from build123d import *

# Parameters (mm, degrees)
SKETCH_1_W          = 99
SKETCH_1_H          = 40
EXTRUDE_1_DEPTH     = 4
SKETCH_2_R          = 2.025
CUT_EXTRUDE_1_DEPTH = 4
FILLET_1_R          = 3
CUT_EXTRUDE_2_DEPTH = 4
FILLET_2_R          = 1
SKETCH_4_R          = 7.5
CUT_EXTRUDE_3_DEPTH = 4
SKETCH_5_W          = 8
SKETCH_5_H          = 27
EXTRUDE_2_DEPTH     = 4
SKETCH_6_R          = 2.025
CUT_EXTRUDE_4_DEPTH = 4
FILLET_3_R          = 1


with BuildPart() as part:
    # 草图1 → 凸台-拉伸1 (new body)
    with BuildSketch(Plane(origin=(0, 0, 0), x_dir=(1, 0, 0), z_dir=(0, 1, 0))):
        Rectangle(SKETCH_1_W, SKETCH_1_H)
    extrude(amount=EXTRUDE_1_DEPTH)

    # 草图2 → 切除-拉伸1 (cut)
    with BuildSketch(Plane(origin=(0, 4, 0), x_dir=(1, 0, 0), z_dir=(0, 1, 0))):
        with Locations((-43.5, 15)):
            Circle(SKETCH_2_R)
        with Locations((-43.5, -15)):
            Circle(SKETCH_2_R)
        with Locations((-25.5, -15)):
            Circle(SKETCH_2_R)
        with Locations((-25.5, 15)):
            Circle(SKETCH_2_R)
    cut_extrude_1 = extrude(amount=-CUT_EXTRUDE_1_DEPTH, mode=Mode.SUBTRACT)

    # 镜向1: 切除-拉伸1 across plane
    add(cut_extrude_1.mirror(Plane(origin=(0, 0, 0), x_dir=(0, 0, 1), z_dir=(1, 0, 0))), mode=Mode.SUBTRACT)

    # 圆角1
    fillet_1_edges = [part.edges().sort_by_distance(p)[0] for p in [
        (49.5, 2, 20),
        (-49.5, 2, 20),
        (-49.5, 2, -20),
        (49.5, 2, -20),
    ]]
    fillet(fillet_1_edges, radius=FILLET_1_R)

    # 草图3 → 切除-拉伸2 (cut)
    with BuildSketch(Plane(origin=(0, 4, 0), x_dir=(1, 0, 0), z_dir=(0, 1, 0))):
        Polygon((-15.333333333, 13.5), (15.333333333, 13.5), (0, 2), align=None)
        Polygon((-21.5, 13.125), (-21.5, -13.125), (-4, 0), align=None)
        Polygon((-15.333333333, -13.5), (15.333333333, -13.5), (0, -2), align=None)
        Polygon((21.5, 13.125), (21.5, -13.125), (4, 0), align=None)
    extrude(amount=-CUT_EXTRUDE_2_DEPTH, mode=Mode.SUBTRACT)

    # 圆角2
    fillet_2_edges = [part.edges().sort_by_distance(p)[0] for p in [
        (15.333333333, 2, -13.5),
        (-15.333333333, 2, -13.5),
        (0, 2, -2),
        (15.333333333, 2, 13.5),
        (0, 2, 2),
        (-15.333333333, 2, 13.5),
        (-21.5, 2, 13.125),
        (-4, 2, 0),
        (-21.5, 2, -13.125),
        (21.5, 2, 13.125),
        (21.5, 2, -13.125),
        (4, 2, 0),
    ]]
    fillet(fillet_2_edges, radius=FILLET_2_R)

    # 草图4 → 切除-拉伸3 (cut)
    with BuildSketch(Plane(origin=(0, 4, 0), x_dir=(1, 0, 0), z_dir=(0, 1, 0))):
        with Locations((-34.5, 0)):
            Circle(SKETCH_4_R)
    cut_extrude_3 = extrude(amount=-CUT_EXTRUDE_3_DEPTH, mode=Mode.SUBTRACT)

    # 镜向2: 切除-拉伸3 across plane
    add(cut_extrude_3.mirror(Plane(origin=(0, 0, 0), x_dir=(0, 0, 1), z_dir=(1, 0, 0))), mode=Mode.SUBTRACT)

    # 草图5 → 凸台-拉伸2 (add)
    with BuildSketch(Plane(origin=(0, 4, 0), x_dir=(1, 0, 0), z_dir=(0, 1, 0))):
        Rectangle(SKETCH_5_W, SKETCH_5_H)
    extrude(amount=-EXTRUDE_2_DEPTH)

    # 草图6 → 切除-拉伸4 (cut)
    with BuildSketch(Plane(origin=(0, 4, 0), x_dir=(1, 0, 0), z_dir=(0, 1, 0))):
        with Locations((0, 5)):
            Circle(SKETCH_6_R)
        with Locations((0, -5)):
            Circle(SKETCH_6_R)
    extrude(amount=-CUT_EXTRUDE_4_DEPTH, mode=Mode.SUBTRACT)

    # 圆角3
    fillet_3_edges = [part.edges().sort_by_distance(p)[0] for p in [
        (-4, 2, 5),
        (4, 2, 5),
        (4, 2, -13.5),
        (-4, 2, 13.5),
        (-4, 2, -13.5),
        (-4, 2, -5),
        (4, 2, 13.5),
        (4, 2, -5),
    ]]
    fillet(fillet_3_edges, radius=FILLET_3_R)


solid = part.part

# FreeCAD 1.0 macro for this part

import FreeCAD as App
import Part
import Sketcher
from FreeCAD import Vector


def edges_at(feature, points):
    """Names of the edges that pass closest to the given points."""
    edges = feature.Shape.Edges
    near = lambda p: min(range(len(edges)), key=lambda i: edges[i].distToShape(Part.Vertex(*p))[0])
    return sorted({f"Edge{near(p) + 1}" for p in points})

doc = App.newDocument("Part")
params = doc.addObject("Spreadsheet::Sheet", "Params")
for row, (alias, value) in enumerate([
    ("sketch1_width", "99 mm"),
    ("sketch1_height", "40 mm"),
    ("pad1_length", "4 mm"),
    ("sketch2_diameter", "4.05 mm"),
    ("pocket1_length", "4 mm"),
    ("fillet_radius", "3 mm"),
    ("sketch3_height", "26.25 mm"),
    ("pocket2_length", "4 mm"),
    ("fillet2_radius", "1 mm"),
    ("sketch4_diameter", "15 mm"),
    ("pocket3_length", "4 mm"),
    ("sketch5_width", "8 mm"),
    ("sketch5_height", "27 mm"),
    ("pad2_length", "4 mm"),
    ("sketch6_diameter", "4.05 mm"),
    ("pocket4_length", "4 mm"),
    ("fillet3_radius", "1 mm"),
], start=1):
    params.set(f"A{row}", alias)
    params.set(f"B{row}", "=" + value)
    params.setAlias(f"B{row}", alias)

body = doc.addObject("PartDesign::Body", "Body")

# Sketch on XZ plane
sketch1 = body.newObject("Sketcher::SketchObject", "Sketch")
sketch1.AttachmentSupport = (doc.getObject("XZ_Plane"), [""])
sketch1.MapMode = "FlatFace"
sketch1.addGeometry([
    Part.LineSegment(Vector(-50, -20, 0), Vector(-50, 20, 0)),
    Part.LineSegment(Vector(-50, 20, 0), Vector(50, 20, 0)),
    Part.LineSegment(Vector(50, 20, 0), Vector(50, -20, 0)),
    Part.LineSegment(Vector(50, -20, 0), Vector(-50, -20, 0)),
], False)
sketch1.addConstraint([
    Sketcher.Constraint("Coincident", 0, 2, 1, 1),
    Sketcher.Constraint("Coincident", 1, 2, 2, 1),
    Sketcher.Constraint("Coincident", 2, 2, 3, 1),
    Sketcher.Constraint("Coincident", 3, 2, 0, 1),
    Sketcher.Constraint("Vertical", 0),
    Sketcher.Constraint("Horizontal", 1),
    Sketcher.Constraint("Vertical", 2),
    Sketcher.Constraint("Horizontal", 3),
    Sketcher.Constraint("Symmetric", 0, 2, 2, 2, -1, 1),
    Sketcher.Constraint("DistanceX", 1, 1, 1, 2, 99.0),
    Sketcher.Constraint("DistanceY", 0, 1, 0, 2, 40.0),
])
sketch1.setExpression("Constraints[9]", "Params.sketch1_width")
sketch1.setExpression("Constraints[10]", "Params.sketch1_height")
pad1 = body.newObject("PartDesign::Pad", "Pad")
pad1.Profile = sketch1
pad1.setExpression("Length", "Params.pad1_length")
pad1.Reversed = True

# Sketch on XZ plane
sketch2 = body.newObject("Sketcher::SketchObject", "Sketch001")
sketch2.AttachmentSupport = (doc.getObject("XZ_Plane"), [""])
sketch2.MapMode = "FlatFace"
sketch2.AttachmentOffset = App.Placement(Vector(0, 0, -4), App.Rotation())
sketch2.addGeometry([
    Part.Circle(Vector(-43.5, -15, 0), Vector(0, 0, 1), 2),
    Part.Circle(Vector(-43.5, 15, 0), Vector(0, 0, 1), 2),
    Part.Circle(Vector(-25.5, 15, 0), Vector(0, 0, 1), 2),
    Part.Circle(Vector(-25.5, -15, 0), Vector(0, 0, 1), 2),
], False)
sketch2.addConstraint([
    Sketcher.Constraint("Equal", 0, 1),
    Sketcher.Constraint("Equal", 1, 2),
    Sketcher.Constraint("Equal", 2, 3),
    Sketcher.Constraint("Symmetric", 0, 3, 1, 3, -1),
    Sketcher.Constraint("Symmetric", 2, 3, 3, 3, -1),
    Sketcher.Constraint("Horizontal", 1, 3, 2, 3),
    Sketcher.Constraint("Diameter", 0, 4.05),
    Sketcher.Constraint("DistanceY", 0, 3, -1, 1, 15.0),
    Sketcher.Constraint("DistanceX", 1, 3, 2, 3, 18.0),
    Sketcher.Constraint("DistanceX", 0, 3, -1, 1, 43.5),
])
sketch2.setExpression("Constraints[6]", "Params.sketch2_diameter")
pocket1 = body.newObject("PartDesign::Pocket", "Pocket")
pocket1.Profile = sketch2
pocket1.setExpression("Length", "Params.pocket1_length")
pocket1.Reversed = True
doc.recompute()

mirrored = body.newObject("PartDesign::Mirrored", "Mirrored")
mirrored.Originals = [pocket1]
mirrored.MirrorPlane = (doc.getObject("YZ_Plane"), [""])
body.Tip = mirrored
doc.recompute()

fillet = body.newObject("PartDesign::Fillet", "Fillet")
fillet.Base = (mirrored, edges_at(mirrored, [
    (49.5, 2, 20),
    (-49.5, 2, 20),
    (-49.5, 2, -20),
    (49.5, 2, -20),
]))
fillet.setExpression("Radius", "Params.fillet_radius")

# Sketch on XZ plane
sketch3 = body.newObject("Sketcher::SketchObject", "Sketch002")
sketch3.AttachmentSupport = (doc.getObject("XZ_Plane"), [""])
sketch3.MapMode = "FlatFace"
sketch3.AttachmentOffset = App.Placement(Vector(0, 0, -4), App.Rotation())
sketch3.addGeometry([
    Part.LineSegment(Vector(15, -14, 0), Vector(-15, -14, 0)),  # 0
    Part.LineSegment(Vector(-15, -14, 0), Vector(0, -2, 0)),  # 1
    Part.LineSegment(Vector(0, -2, 0), Vector(15, -14, 0)),  # 2
    Part.LineSegment(Vector(-22, -13, 0), Vector(-22, 13, 0)),  # 3
    Part.LineSegment(Vector(-22, 13, 0), Vector(-4, 0, 0)),  # 4
    Part.LineSegment(Vector(-4, 0, 0), Vector(-22, -13, 0)),  # 5
    Part.LineSegment(Vector(-15, 14, 0), Vector(15, 14, 0)),  # 6
    Part.LineSegment(Vector(15, 14, 0), Vector(0, 2, 0)),  # 7
    Part.LineSegment(Vector(0, 2, 0), Vector(-15, 14, 0)),  # 8
    Part.LineSegment(Vector(22, 13, 0), Vector(22, -13, 0)),  # 9
    Part.LineSegment(Vector(22, -13, 0), Vector(4, 0, 0)),  # 10
    Part.LineSegment(Vector(4, 0, 0), Vector(22, 13, 0)),  # 11
], False)
sketch3.addConstraint([
    Sketcher.Constraint("Coincident", 0, 2, 1, 1),
    Sketcher.Constraint("Coincident", 1, 2, 2, 1),
    Sketcher.Constraint("Coincident", 2, 2, 0, 1),
    Sketcher.Constraint("Coincident", 3, 2, 4, 1),
    Sketcher.Constraint("Coincident", 4, 2, 5, 1),
    Sketcher.Constraint("Coincident", 5, 2, 3, 1),
    Sketcher.Constraint("Coincident", 6, 2, 7, 1),
    Sketcher.Constraint("Coincident", 7, 2, 8, 1),
    Sketcher.Constraint("Coincident", 8, 2, 6, 1),
    Sketcher.Constraint("Coincident", 9, 2, 10, 1),
    Sketcher.Constraint("Coincident", 10, 2, 11, 1),
    Sketcher.Constraint("Coincident", 11, 2, 9, 1),
    Sketcher.Constraint("Horizontal", 0),
    Sketcher.Constraint("Vertical", 3),
    Sketcher.Constraint("Horizontal", 6),
    Sketcher.Constraint("Vertical", 9),
    Sketcher.Constraint("Symmetric", 0, 2, 6, 2, -1, 1),
    Sketcher.Constraint("Symmetric", 1, 2, 7, 2, -1, 1),
    Sketcher.Constraint("Symmetric", 3, 2, 9, 2, -1, 1),
    Sketcher.Constraint("Symmetric", 4, 2, 10, 2, -1, 1),
    Sketcher.Constraint("PointOnObject", 1, 2, -2),
    Sketcher.Constraint("PointOnObject", 4, 2, -1),
    Sketcher.Constraint("Parallel", 2, 4),
    Sketcher.Constraint("Parallel", 1, 5),
    Sketcher.Constraint("Parallel", 4, 8),
    Sketcher.Constraint("Parallel", 7, 11),
    Sketcher.Constraint("Horizontal", 5, 2, 9, 2),
    Sketcher.Constraint("DistanceY", 1, 2, -1, 1, 2.0),
    Sketcher.Constraint("DistanceX", 4, 2, -1, 1, 4.0),
    Sketcher.Constraint("DistanceY", 2, 2, 6, 2, 27.0),
    Sketcher.Constraint("DistanceY", 3, 1, 3, 2, 26.25),
    Sketcher.Constraint("DistanceX", 3, 2, -1, 1, 21.5),
])
sketch3.setExpression("Constraints[30]", "Params.sketch3_height")
pocket2 = body.newObject("PartDesign::Pocket", "Pocket001")
pocket2.Profile = sketch3
pocket2.setExpression("Length", "Params.pocket2_length")
pocket2.Reversed = True
doc.recompute()

fillet2 = body.newObject("PartDesign::Fillet", "Fillet001")
fillet2.Base = (pocket2, edges_at(pocket2, [
    (15.333, 2, -13.5),
    (-15.333, 2, -13.5),
    (0, 2, -2),
    (15.333, 2, 13.5),
    (0, 2, 2),
    (-15.333, 2, 13.5),
    (-21.5, 2, 13.125),
    (-4, 2, 0),
    (-21.5, 2, -13.125),
    (21.5, 2, 13.125),
    (21.5, 2, -13.125),
    (4, 2, 0),
]))
fillet2.setExpression("Radius", "Params.fillet2_radius")

# Sketch on XZ plane
sketch4 = body.newObject("Sketcher::SketchObject", "Sketch003")
sketch4.AttachmentSupport = (doc.getObject("XZ_Plane"), [""])
sketch4.MapMode = "FlatFace"
sketch4.AttachmentOffset = App.Placement(Vector(0, 0, -4), App.Rotation())
sketch4.addGeometry(Part.Circle(Vector(-34, 0, 0), Vector(0, 0, 1), 8), False)
sketch4.addConstraint([
    Sketcher.Constraint("PointOnObject", 0, 3, -1),
    Sketcher.Constraint("Diameter", 0, 15.0),
    Sketcher.Constraint("DistanceX", 0, 3, -1, 1, 34.5),
])
sketch4.setExpression("Constraints[1]", "Params.sketch4_diameter")
pocket3 = body.newObject("PartDesign::Pocket", "Pocket002")
pocket3.Profile = sketch4
pocket3.setExpression("Length", "Params.pocket3_length")
pocket3.Reversed = True
doc.recompute()

mirrored2 = body.newObject("PartDesign::Mirrored", "Mirrored001")
mirrored2.Originals = [pocket3]
mirrored2.MirrorPlane = (doc.getObject("YZ_Plane"), [""])
body.Tip = mirrored2

# Sketch on XZ plane
sketch5 = body.newObject("Sketcher::SketchObject", "Sketch004")
sketch5.AttachmentSupport = (doc.getObject("XZ_Plane"), [""])
sketch5.MapMode = "FlatFace"
sketch5.AttachmentOffset = App.Placement(Vector(0, 0, -4), App.Rotation())
sketch5.addGeometry([
    Part.LineSegment(Vector(-4, -14, 0), Vector(-4, 14, 0)),
    Part.LineSegment(Vector(-4, 14, 0), Vector(4, 14, 0)),
    Part.LineSegment(Vector(4, 14, 0), Vector(4, -14, 0)),
    Part.LineSegment(Vector(4, -14, 0), Vector(-4, -14, 0)),
], False)
sketch5.addConstraint([
    Sketcher.Constraint("Coincident", 0, 2, 1, 1),
    Sketcher.Constraint("Coincident", 1, 2, 2, 1),
    Sketcher.Constraint("Coincident", 2, 2, 3, 1),
    Sketcher.Constraint("Coincident", 3, 2, 0, 1),
    Sketcher.Constraint("Vertical", 0),
    Sketcher.Constraint("Horizontal", 1),
    Sketcher.Constraint("Vertical", 2),
    Sketcher.Constraint("Horizontal", 3),
    Sketcher.Constraint("Symmetric", 0, 2, 2, 2, -1, 1),
    Sketcher.Constraint("DistanceX", 1, 1, 1, 2, 8.0),
    Sketcher.Constraint("DistanceY", 0, 1, 0, 2, 27.0),
])
sketch5.setExpression("Constraints[9]", "Params.sketch5_width")
sketch5.setExpression("Constraints[10]", "Params.sketch5_height")
pad2 = body.newObject("PartDesign::Pad", "Pad001")
pad2.Profile = sketch5
pad2.setExpression("Length", "Params.pad2_length")

# Sketch on XZ plane
sketch6 = body.newObject("Sketcher::SketchObject", "Sketch005")
sketch6.AttachmentSupport = (doc.getObject("XZ_Plane"), [""])
sketch6.MapMode = "FlatFace"
sketch6.AttachmentOffset = App.Placement(Vector(0, 0, -4), App.Rotation())
sketch6.addGeometry([
    Part.Circle(Vector(0, -5, 0), Vector(0, 0, 1), 2),
    Part.Circle(Vector(0, 5, 0), Vector(0, 0, 1), 2),
], False)
sketch6.addConstraint([
    Sketcher.Constraint("Equal", 0, 1),
    Sketcher.Constraint("Symmetric", 0, 3, 1, 3, -1, 1),
    Sketcher.Constraint("PointOnObject", 0, 3, -2),
    Sketcher.Constraint("Diameter", 0, 4.05),
    Sketcher.Constraint("DistanceY", 0, 3, -1, 1, 5.0),
])
sketch6.setExpression("Constraints[3]", "Params.sketch6_diameter")
pocket4 = body.newObject("PartDesign::Pocket", "Pocket003")
pocket4.Profile = sketch6
pocket4.setExpression("Length", "Params.pocket4_length")
pocket4.Reversed = True
doc.recompute()

fillet3 = body.newObject("PartDesign::Fillet", "Fillet002")
fillet3.Base = (pocket4, edges_at(pocket4, [
    (-4, 2, 5),
    (4, 2, 5),
    (4, 2, -13.5),
    (-4, 2, 13.5),
    (-4, 2, -13.5),
    (-4, 2, -5),
    (4, 2, 13.5),
    (4, 2, -5),
]))
fillet3.setExpression("Radius", "Params.fillet3_radius")

doc.recompute()
